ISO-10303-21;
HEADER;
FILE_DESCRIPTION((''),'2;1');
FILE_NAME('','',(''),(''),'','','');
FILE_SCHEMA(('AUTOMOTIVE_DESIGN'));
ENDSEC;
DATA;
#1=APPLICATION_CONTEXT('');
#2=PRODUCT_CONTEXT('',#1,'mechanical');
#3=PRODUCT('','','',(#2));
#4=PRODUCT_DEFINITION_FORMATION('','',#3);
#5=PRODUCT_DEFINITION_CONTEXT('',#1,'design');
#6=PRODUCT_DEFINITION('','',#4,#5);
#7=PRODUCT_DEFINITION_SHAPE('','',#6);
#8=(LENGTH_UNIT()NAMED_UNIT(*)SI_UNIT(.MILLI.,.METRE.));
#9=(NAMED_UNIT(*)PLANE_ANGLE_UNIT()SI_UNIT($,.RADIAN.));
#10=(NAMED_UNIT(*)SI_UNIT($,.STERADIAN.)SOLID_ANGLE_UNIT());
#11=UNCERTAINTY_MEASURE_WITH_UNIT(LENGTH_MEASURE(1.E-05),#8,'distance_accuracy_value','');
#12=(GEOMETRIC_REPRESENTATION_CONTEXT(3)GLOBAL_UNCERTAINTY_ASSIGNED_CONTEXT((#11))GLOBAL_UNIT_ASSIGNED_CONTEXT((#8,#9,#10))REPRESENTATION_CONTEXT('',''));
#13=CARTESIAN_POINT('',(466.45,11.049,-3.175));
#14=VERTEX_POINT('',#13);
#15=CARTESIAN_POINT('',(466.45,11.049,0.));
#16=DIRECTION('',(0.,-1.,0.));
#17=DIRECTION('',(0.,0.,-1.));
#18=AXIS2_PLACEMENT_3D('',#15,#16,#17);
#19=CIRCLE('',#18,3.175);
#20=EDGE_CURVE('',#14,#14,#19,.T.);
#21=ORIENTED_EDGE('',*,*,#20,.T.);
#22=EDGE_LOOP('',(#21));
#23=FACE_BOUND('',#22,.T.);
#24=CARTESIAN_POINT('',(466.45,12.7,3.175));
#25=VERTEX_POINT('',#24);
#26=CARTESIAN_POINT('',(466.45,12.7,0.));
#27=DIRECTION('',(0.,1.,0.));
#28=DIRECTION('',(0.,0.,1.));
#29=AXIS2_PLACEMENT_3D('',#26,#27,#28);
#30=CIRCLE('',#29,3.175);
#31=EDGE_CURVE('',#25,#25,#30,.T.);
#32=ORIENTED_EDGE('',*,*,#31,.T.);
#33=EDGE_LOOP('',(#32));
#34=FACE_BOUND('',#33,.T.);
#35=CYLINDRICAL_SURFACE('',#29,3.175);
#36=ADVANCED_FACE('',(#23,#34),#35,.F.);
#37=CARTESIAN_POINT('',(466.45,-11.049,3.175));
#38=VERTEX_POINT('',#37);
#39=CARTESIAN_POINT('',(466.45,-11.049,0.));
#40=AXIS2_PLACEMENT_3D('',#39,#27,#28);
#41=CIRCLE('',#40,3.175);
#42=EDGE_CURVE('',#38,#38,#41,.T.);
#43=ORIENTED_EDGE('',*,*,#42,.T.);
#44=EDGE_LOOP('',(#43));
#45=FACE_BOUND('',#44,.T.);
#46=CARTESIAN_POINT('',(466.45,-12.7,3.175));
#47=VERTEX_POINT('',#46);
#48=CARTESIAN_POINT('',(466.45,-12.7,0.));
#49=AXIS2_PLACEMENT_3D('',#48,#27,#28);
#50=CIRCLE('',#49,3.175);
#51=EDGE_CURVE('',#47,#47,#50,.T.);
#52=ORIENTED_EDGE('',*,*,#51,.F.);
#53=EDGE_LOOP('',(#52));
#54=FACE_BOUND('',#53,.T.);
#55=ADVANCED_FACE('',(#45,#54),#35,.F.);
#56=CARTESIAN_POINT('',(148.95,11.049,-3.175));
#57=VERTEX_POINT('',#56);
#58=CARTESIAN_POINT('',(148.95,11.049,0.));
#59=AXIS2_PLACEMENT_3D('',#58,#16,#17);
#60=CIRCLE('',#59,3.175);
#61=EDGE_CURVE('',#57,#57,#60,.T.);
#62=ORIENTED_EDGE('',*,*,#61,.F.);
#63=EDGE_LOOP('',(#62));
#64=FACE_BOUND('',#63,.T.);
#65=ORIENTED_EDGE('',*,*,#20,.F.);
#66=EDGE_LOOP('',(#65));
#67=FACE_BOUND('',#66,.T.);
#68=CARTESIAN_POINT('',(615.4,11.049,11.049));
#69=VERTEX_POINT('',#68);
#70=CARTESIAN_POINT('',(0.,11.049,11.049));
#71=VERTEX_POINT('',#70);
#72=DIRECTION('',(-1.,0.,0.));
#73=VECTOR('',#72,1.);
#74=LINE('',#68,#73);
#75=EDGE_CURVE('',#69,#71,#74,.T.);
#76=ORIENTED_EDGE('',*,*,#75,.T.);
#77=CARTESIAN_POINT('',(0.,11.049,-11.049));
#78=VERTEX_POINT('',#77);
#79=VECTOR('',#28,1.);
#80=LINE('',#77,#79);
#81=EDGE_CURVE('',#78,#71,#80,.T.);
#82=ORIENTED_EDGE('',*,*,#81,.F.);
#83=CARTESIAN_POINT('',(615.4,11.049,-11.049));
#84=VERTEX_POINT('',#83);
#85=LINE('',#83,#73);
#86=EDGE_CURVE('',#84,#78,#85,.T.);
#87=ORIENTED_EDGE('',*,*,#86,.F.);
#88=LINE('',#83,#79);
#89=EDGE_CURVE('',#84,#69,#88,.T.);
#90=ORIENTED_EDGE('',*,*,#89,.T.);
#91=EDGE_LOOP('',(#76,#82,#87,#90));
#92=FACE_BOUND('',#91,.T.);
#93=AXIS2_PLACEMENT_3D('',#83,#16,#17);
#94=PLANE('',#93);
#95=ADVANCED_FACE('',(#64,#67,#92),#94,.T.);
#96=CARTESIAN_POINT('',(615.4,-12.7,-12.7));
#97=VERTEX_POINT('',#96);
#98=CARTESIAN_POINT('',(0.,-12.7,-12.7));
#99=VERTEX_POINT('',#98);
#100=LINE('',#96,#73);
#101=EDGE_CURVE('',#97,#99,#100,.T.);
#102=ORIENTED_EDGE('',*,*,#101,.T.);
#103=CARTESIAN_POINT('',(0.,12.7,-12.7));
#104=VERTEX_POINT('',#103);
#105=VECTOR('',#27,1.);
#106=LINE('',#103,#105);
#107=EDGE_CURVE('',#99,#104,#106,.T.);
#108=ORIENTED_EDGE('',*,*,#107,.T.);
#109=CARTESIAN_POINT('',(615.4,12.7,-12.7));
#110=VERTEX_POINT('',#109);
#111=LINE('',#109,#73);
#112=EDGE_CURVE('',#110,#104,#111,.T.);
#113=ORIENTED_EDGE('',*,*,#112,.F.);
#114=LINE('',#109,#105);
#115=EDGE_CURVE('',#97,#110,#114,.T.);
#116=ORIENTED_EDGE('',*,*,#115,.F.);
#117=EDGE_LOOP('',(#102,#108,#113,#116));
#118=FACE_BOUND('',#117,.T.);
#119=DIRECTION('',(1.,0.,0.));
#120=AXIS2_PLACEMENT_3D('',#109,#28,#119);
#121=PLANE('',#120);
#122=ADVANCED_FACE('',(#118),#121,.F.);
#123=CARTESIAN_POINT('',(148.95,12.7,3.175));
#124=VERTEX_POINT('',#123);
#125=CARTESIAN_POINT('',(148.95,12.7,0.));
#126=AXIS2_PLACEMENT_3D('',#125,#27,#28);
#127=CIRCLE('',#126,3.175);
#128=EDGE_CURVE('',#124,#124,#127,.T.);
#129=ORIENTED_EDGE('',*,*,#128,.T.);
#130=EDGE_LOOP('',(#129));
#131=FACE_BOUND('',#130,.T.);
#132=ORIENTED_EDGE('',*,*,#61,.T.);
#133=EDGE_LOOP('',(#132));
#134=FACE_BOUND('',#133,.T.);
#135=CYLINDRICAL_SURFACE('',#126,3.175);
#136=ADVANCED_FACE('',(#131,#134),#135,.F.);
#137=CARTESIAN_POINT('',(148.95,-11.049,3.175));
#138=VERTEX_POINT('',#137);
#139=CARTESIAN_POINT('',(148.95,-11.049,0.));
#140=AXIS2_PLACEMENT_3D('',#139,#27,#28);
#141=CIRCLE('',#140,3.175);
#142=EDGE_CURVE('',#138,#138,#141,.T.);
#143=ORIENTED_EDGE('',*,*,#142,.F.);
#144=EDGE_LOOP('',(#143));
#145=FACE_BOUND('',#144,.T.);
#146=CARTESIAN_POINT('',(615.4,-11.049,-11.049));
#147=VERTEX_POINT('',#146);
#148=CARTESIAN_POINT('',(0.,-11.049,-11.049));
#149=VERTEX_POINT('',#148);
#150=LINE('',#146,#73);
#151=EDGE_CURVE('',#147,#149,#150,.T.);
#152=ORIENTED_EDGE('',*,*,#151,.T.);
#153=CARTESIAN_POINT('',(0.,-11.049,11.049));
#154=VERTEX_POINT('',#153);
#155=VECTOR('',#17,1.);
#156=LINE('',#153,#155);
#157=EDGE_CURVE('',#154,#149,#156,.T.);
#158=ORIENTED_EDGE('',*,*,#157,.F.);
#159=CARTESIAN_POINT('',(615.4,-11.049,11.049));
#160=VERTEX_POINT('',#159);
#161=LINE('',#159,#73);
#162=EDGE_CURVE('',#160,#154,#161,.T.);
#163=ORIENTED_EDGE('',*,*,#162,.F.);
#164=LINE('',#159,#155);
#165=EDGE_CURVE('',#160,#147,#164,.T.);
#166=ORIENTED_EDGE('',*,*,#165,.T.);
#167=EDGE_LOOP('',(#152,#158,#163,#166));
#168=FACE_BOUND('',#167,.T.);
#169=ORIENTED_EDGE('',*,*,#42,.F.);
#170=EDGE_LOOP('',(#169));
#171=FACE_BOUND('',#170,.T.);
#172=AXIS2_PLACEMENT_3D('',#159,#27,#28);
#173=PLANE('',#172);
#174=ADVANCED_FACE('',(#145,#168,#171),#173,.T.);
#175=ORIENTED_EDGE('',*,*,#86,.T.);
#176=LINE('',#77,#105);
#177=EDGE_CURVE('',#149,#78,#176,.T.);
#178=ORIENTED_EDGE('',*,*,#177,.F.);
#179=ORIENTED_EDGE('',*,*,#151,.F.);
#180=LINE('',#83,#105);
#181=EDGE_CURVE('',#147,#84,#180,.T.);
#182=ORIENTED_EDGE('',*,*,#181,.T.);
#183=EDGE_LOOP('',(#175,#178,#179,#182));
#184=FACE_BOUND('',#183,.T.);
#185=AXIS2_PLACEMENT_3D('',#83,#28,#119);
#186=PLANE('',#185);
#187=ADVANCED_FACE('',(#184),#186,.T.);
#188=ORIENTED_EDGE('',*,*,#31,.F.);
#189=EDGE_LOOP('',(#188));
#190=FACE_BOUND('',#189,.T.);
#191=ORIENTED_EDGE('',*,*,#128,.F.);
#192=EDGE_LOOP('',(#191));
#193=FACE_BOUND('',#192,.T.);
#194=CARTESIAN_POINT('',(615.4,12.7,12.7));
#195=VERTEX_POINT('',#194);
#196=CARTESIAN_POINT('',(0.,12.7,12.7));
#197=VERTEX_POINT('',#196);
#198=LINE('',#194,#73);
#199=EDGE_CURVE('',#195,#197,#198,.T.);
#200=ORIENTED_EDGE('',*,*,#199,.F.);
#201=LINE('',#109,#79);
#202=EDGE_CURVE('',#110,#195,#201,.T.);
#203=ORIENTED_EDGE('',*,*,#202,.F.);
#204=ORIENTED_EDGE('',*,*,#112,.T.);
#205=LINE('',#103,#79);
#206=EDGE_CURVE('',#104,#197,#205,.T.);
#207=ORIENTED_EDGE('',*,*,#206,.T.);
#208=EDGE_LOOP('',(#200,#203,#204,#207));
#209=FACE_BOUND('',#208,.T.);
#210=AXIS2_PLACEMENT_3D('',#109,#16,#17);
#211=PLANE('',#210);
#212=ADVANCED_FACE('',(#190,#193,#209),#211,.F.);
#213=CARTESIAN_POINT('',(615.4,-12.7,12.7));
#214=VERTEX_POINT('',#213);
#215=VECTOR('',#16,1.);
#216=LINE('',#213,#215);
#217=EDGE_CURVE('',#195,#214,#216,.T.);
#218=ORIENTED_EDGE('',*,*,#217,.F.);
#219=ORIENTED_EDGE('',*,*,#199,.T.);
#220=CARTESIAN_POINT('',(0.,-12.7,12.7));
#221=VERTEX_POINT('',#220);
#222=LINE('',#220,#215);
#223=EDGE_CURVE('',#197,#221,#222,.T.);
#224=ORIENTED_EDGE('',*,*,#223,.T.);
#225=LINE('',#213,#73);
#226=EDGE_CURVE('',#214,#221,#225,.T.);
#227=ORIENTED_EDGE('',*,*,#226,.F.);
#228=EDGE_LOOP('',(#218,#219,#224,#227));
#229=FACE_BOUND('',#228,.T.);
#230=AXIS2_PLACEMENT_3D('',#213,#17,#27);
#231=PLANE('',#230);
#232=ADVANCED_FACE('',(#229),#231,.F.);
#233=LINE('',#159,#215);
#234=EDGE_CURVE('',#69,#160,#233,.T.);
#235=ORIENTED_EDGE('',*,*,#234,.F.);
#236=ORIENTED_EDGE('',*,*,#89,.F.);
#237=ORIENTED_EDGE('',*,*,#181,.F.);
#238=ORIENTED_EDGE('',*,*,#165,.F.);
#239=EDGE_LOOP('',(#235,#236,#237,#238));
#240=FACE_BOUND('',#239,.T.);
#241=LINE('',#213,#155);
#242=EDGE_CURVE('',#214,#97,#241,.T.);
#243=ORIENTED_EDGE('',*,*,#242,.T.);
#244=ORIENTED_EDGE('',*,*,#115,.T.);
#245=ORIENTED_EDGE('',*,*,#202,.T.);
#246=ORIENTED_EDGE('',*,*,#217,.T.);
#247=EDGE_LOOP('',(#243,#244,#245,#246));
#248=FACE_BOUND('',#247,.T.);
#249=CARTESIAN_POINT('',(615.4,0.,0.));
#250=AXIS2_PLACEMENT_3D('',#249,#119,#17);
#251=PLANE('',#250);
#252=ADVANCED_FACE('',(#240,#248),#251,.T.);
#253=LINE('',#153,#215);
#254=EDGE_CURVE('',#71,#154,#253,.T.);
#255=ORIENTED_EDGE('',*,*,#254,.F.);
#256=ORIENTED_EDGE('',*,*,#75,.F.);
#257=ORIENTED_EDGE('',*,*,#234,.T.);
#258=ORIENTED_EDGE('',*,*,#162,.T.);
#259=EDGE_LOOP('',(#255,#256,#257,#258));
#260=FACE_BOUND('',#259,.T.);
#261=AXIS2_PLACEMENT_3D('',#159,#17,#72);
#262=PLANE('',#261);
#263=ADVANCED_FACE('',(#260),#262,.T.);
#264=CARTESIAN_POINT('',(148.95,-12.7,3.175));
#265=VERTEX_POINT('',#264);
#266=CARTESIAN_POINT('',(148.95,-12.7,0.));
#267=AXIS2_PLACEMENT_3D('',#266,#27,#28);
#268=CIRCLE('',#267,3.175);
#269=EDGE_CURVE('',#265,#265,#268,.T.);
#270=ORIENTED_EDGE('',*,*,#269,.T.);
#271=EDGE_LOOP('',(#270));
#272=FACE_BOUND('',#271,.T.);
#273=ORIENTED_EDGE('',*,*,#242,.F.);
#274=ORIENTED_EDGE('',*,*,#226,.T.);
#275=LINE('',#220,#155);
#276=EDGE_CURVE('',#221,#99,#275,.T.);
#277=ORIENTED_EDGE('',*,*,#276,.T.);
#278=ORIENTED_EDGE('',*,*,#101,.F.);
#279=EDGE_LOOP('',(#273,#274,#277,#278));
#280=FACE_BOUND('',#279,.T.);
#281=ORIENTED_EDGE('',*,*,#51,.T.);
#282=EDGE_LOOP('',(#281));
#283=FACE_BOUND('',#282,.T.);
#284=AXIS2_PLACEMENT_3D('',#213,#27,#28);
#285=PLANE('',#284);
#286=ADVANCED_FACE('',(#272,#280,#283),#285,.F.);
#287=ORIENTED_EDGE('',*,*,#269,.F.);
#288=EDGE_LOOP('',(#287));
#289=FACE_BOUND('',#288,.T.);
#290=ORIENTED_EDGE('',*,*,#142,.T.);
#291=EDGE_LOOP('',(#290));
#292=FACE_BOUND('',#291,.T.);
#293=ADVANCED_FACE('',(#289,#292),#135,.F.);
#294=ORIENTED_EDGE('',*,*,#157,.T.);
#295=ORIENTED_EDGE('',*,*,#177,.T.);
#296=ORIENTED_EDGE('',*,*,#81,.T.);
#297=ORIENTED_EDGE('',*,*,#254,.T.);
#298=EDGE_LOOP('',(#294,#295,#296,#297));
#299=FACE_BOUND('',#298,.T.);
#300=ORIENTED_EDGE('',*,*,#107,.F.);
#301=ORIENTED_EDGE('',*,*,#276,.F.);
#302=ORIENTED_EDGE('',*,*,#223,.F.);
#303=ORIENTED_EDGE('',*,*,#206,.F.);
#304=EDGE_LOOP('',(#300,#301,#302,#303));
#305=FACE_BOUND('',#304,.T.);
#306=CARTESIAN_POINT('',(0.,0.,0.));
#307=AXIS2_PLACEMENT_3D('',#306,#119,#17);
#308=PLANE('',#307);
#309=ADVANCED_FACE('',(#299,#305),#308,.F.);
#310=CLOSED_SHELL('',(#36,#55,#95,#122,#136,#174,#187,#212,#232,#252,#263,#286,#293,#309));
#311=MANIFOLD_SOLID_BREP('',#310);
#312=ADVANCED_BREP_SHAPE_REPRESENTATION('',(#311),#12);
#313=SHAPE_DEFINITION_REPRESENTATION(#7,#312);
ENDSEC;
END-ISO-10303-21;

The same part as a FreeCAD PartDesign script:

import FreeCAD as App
import Part
import Sketcher
Q = App.Units.Quantity

doc = App.newDocument("Part")
body = doc.addObject("PartDesign::Body", "Body")

# Sketch on YZ plane
sketch1 = doc.addObject("Sketcher::SketchObject", "Sketch")
body.addObject(sketch1)
sketch1.AttachmentSupport = (doc.YZ_Plane, [""])
sketch1.MapMode = "FlatFace"
sketch1.addGeometry([
    Part.LineSegment(App.Vector(13, 13, 0), App.Vector(-13, 13, 0)),  # 0
    Part.LineSegment(App.Vector(-13, 13, 0), App.Vector(-13, -13, 0)),  # 1
    Part.LineSegment(App.Vector(-13, -13, 0), App.Vector(13, -13, 0)),  # 2
    Part.LineSegment(App.Vector(13, -13, 0), App.Vector(13, 13, 0)),  # 3
    Part.LineSegment(App.Vector(-11, -11, 0), App.Vector(-11, 11, 0)),  # 4
    Part.LineSegment(App.Vector(-11, 11, 0), App.Vector(11, 11, 0)),  # 5
    Part.LineSegment(App.Vector(11, 11, 0), App.Vector(11, -11, 0)),  # 6
    Part.LineSegment(App.Vector(11, -11, 0), App.Vector(-11, -11, 0)),  # 7
], False)
sketch1.addConstraint([
    Sketcher.Constraint("Coincident", 0, 2, 1, 1),
    Sketcher.Constraint("Coincident", 1, 2, 2, 1),
    Sketcher.Constraint("Coincident", 2, 2, 3, 1),
    Sketcher.Constraint("Coincident", 3, 2, 0, 1),
    Sketcher.Constraint("Coincident", 4, 2, 5, 1),
    Sketcher.Constraint("Coincident", 5, 2, 6, 1),
    Sketcher.Constraint("Coincident", 6, 2, 7, 1),
    Sketcher.Constraint("Coincident", 7, 2, 4, 1),
    Sketcher.Constraint("Horizontal", 0),
    Sketcher.Constraint("Vertical", 1),
    Sketcher.Constraint("Horizontal", 2),
    Sketcher.Constraint("Vertical", 3),
    Sketcher.Constraint("Vertical", 4),
    Sketcher.Constraint("Horizontal", 5),
    Sketcher.Constraint("Vertical", 6),
    Sketcher.Constraint("Horizontal", 7),
    Sketcher.Constraint("Symmetric", 0, 2, 2, 2, -1, 1),
    Sketcher.Constraint("Symmetric", 4, 2, 6, 2, -1, 1),
    Sketcher.Constraint("Equal", 2, 1),
    Sketcher.Constraint("Equal", 7, 4),
    Sketcher.Constraint("DistanceX", 0, 2, 0, 1, Q("1 in")),
    Sketcher.Constraint("DistanceX", 5, 1, 5, 2, Q("0.87 in")),
])
pad1 = doc.addObject("PartDesign::Pad", "Pad")
body.addObject(pad1)
pad1.Profile = sketch1
pad1.Length = 615.4

# Sketch on XZ plane
sketch2 = doc.addObject("Sketcher::SketchObject", "Sketch001")
body.addObject(sketch2)
sketch2.AttachmentSupport = (doc.XZ_Plane, [""])
sketch2.MapMode = "FlatFace"
sketch2.AttachmentOffset = App.Placement(App.Vector(0, 0, -0.5 * 25.4), App.Rotation())
sketch2.addGeometry([
    Part.Circle(App.Vector(466.4, 0, 0), App.Vector(0, 0, 1), 3.2),
    Part.Circle(App.Vector(148.9, 0, 0), App.Vector(0, 0, 1), 3.2),
], False)
sketch2.addConstraint([
    Sketcher.Constraint("Equal", 0, 1),
    Sketcher.Constraint("PointOnObject", 0, 3, -1),
    Sketcher.Constraint("PointOnObject", 1, 3, -1),
    Sketcher.Constraint("Diameter", 0, Q("0.25 in")),
    Sketcher.Constraint("DistanceX", 1, 3, 0, 3, Q("12.5 in")),
    Sketcher.Constraint("DistanceX", -1, 1, 0, 3, Q("466.45 mm")),
])
doc.recompute()
hole = doc.addObject("PartDesign::Hole", "Hole")
body.addObject(hole)
hole.Profile = sketch2
hole.ThreadType = "None"
hole.Diameter = Q("0.25 in")
hole.DepthType = "ThroughAll"
hole.Reversed = True

doc.recompute()
